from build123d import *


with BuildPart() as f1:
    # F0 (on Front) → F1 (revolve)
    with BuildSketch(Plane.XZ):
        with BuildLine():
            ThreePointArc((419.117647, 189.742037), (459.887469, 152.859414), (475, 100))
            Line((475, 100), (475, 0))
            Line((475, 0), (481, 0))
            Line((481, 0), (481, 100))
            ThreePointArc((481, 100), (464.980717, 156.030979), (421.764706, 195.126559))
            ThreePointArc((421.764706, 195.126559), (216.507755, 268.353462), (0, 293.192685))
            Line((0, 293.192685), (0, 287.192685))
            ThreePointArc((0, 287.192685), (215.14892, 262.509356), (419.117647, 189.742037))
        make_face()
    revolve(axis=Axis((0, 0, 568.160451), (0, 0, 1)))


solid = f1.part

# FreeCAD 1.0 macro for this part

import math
import FreeCAD as App
import Part
import Sketcher

V = App.Vector
Q = App.Units.Quantity

doc = App.newDocument("Part")
body = doc.addObject("PartDesign::Body", "Body")

# Sketch on XZ plane
sketch1 = doc.addObject("Sketcher::SketchObject", "Sketch")
body.addObject(sketch1)
sketch1.AttachmentSupport = (doc.XZ_Plane, [""])
sketch1.MapMode = "FlatFace"
sketch1.addGeometry(Part.ArcOfCircle(Part.Circle(V(375.000001, 100.000001, 0), V(0, 0, 1), 99.999999), math.radians(0), math.radians(63.821032)), False)
sketch1.addGeometry(Part.LineSegment(V(475, 100, 0), V(475, 0, 0)), False)
sketch1.addGeometry(Part.LineSegment(V(475, 0, 0), V(481, 0, 0)), False)
sketch1.addGeometry(Part.LineSegment(V(481, 0, 0), V(481, 100, 0)), False)
sketch1.addGeometry(Part.ArcOfCircle(Part.Circle(V(375.000002, 100.000001, 0), V(0, 0, 1), 105.999998), math.radians(0), math.radians(63.821032)), False)
sketch1.addGeometry(Part.ArcOfCircle(Part.Circle(V(0.000003, -662.807297, 0), V(0, 0, 1), 955.999982), math.radians(63.821031), math.radians(90)), False)
sketch1.addGeometry(Part.LineSegment(V(0, 293.192685, 0), V(0, 287.192685, 0)), False)
sketch1.addGeometry(Part.ArcOfCircle(Part.Circle(V(-0.000002, -662.807323, 0), V(0, 0, 1), 950.000008), math.radians(63.821031), math.radians(90)), False)
sketch1.addConstraint(Sketcher.Constraint("Tangent", 0, 1, 1, 1))
sketch1.addConstraint(Sketcher.Constraint("Coincident", 1, 2, 2, 1))
sketch1.addConstraint(Sketcher.Constraint("Coincident", 2, 2, 3, 1))
sketch1.addConstraint(Sketcher.Constraint("Tangent", 3, 2, 4, 1))
sketch1.addConstraint(Sketcher.Constraint("Tangent", 4, 2, 5, 1))
sketch1.addConstraint(Sketcher.Constraint("Coincident", 5, 2, 6, 1))
sketch1.addConstraint(Sketcher.Constraint("Coincident", 6, 2, 7, 2))
sketch1.addConstraint(Sketcher.Constraint("Tangent", 7, 1, 0, 2))
sketch1.addConstraint(Sketcher.Constraint("Vertical", 1))
sketch1.addConstraint(Sketcher.Constraint("Horizontal", 2))
sketch1.addConstraint(Sketcher.Constraint("Vertical", 3))
sketch1.addConstraint(Sketcher.Constraint("Vertical", 6))
sketch1.addConstraint(Sketcher.Constraint("Coincident", 4, 3, 0, 3))
sketch1.addConstraint(Sketcher.Constraint("PointOnObject", 1, 2, -1))
sketch1.addConstraint(Sketcher.Constraint("PointOnObject", 6, 2, -2))
sketch1.addConstraint(Sketcher.Constraint("Equal", 2, 6))
sketch1.addConstraint(Sketcher.Constraint("Radius", 0, Q("99.999999 mm")))
sketch1.addConstraint(Sketcher.Constraint("Radius", 4, Q("105.999998 mm")))
sketch1.addConstraint(Sketcher.Constraint("DistanceY", 1, 2, 1, 1, Q("100 mm")))
sketch1.addConstraint(Sketcher.Constraint("DistanceX", -1, 1, 0, 3, Q("375.000001 mm")))
sketch1.addConstraint(Sketcher.Constraint("DistanceX", 5, 3, 0, 3, Q("374.999998 mm")))
sketch1.addConstraint(Sketcher.Constraint("Radius", 5, Q("955.999982 mm")))
sketch1.addConstraint(Sketcher.Constraint("Radius", 7, Q("950.000008 mm")))
revolution = doc.addObject("PartDesign::Revolution", "Revolution")
body.addObject(revolution)
revolution.Profile = sketch1
revolution.ReferenceAxis = (sketch1, ["V_Axis"])
revolution.Angle = 360

doc.recompute()
